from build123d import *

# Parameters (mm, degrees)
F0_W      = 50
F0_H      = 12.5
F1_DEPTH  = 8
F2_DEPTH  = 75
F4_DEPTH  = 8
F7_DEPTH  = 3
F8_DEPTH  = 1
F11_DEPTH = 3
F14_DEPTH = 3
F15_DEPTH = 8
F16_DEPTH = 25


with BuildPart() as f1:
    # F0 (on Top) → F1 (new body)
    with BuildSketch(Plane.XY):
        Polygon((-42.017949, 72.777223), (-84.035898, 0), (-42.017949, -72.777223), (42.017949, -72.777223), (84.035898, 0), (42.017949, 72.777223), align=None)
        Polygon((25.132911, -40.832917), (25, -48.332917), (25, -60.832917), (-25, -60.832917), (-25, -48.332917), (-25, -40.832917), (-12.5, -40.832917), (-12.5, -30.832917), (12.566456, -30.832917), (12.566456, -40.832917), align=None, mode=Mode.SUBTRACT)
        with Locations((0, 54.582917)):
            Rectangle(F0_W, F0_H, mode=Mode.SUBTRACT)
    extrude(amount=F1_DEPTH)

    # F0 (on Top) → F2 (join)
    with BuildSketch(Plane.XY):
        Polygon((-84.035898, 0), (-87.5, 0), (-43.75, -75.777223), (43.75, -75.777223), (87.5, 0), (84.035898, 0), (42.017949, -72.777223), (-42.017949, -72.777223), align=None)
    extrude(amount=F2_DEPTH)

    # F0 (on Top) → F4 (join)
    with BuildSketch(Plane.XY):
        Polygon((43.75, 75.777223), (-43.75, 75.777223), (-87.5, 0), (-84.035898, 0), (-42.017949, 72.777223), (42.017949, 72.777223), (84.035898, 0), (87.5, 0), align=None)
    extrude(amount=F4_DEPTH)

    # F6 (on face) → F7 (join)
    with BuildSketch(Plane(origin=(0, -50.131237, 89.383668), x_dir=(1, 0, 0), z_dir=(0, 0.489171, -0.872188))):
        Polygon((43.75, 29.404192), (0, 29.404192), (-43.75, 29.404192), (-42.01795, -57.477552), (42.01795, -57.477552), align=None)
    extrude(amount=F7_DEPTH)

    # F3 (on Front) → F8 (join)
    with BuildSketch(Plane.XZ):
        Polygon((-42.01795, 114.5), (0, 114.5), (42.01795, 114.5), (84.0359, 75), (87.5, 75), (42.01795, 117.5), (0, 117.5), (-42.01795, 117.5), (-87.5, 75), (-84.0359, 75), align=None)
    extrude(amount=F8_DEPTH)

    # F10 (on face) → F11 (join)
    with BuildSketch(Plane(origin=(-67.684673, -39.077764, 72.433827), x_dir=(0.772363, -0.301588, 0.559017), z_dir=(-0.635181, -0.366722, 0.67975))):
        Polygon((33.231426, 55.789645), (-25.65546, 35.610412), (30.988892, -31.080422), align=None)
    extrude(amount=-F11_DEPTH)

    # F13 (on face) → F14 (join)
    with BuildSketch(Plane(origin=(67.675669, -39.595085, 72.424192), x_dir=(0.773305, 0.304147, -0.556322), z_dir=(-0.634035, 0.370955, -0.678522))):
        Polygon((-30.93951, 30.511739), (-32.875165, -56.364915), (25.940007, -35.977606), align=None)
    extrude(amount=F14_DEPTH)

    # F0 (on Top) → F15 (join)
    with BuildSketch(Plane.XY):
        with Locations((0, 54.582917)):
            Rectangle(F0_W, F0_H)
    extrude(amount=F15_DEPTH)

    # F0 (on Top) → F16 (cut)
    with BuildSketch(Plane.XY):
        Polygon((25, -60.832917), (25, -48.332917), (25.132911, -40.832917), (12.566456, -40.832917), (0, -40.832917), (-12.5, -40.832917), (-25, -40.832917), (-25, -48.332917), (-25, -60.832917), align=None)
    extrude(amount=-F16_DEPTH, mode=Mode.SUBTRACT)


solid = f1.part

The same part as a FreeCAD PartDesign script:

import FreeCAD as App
import Part
import Sketcher
Q = App.Units.Quantity

doc = App.newDocument("Part")
body = doc.addObject("PartDesign::Body", "Body")

# Sketch on XY plane
sketch1 = doc.addObject("Sketcher::SketchObject", "Sketch")
body.addObject(sketch1)
sketch1.AttachmentSupport = (doc.XY_Plane, [""])
sketch1.MapMode = "FlatFace"
sketch1.addGeometry([
    Part.LineSegment(App.Vector(-42, 73, 0), App.Vector(-84, 0, 0)),  # 0
    Part.LineSegment(App.Vector(-84, 0, 0), App.Vector(-42, -73, 0)),  # 1
    Part.LineSegment(App.Vector(-42, -73, 0), App.Vector(42, -73, 0)),  # 2
    Part.LineSegment(App.Vector(42, -73, 0), App.Vector(84, 0, 0)),  # 3
    Part.LineSegment(App.Vector(84, 0, 0), App.Vector(42, 73, 0)),  # 4
    Part.LineSegment(App.Vector(42, 73, 0), App.Vector(-42, 73, 0)),  # 5
    Part.LineSegment(App.Vector(13, -41, 0), App.Vector(25, -41, 0)),  # 6
    Part.LineSegment(App.Vector(25, -41, 0), App.Vector(25, -48, 0)),  # 7
    Part.LineSegment(App.Vector(25, -48, 0), App.Vector(25, -61, 0)),  # 8
    Part.LineSegment(App.Vector(25, -61, 0), App.Vector(-25, -61, 0)),  # 9
    Part.LineSegment(App.Vector(-25, -61, 0), App.Vector(-25, -41, 0)),  # 10
    Part.LineSegment(App.Vector(-25, -41, 0), App.Vector(-12, -41, 0)),  # 11
    Part.LineSegment(App.Vector(-12, -41, 0), App.Vector(-12, -31, 0)),  # 12
    Part.LineSegment(App.Vector(-12, -31, 0), App.Vector(13, -31, 0)),  # 13
    Part.LineSegment(App.Vector(13, -31, 0), App.Vector(13, -41, 0)),  # 14
    Part.LineSegment(App.Vector(25, 48, 0), App.Vector(-25, 48, 0)),  # 15
    Part.LineSegment(App.Vector(-25, 48, 0), App.Vector(-25, 61, 0)),  # 16
    Part.LineSegment(App.Vector(-25, 61, 0), App.Vector(25, 61, 0)),  # 17
    Part.LineSegment(App.Vector(25, 61, 0), App.Vector(25, 48, 0)),  # 18
], False)
sketch1.addConstraint([
    Sketcher.Constraint("Coincident", 0, 2, 1, 1),
    Sketcher.Constraint("Coincident", 1, 2, 2, 1),
    Sketcher.Constraint("Coincident", 2, 2, 3, 1),
    Sketcher.Constraint("Coincident", 3, 2, 4, 1),
    Sketcher.Constraint("Coincident", 4, 2, 5, 1),
    Sketcher.Constraint("Coincident", 5, 2, 0, 1),
    Sketcher.Constraint("Coincident", 6, 2, 7, 1),
    Sketcher.Constraint("Coincident", 7, 2, 8, 1),
    Sketcher.Constraint("Coincident", 8, 2, 9, 1),
    Sketcher.Constraint("Coincident", 9, 2, 10, 1),
    Sketcher.Constraint("Coincident", 10, 2, 11, 1),
    Sketcher.Constraint("Coincident", 11, 2, 12, 1),
    Sketcher.Constraint("Coincident", 12, 2, 13, 1),
    Sketcher.Constraint("Coincident", 13, 2, 14, 1),
    Sketcher.Constraint("Coincident", 14, 2, 6, 1),
    Sketcher.Constraint("Coincident", 15, 2, 16, 1),
    Sketcher.Constraint("Coincident", 16, 2, 17, 1),
    Sketcher.Constraint("Coincident", 17, 2, 18, 1),
    Sketcher.Constraint("Coincident", 18, 2, 15, 1),
    Sketcher.Constraint("Horizontal", 2),
    Sketcher.Constraint("Horizontal", 5),
    Sketcher.Constraint("Horizontal", 6),
    Sketcher.Constraint("Vertical", 8),
    Sketcher.Constraint("Horizontal", 9),
    Sketcher.Constraint("Vertical", 10),
    Sketcher.Constraint("Horizontal", 11),
    Sketcher.Constraint("Vertical", 12),
    Sketcher.Constraint("Horizontal", 13),
    Sketcher.Constraint("Vertical", 14),
    Sketcher.Constraint("Horizontal", 15),
    Sketcher.Constraint("Vertical", 16),
    Sketcher.Constraint("Horizontal", 17),
    Sketcher.Constraint("Vertical", 18),
    Sketcher.Constraint("Symmetric", 0, 2, 3, 2, -1, 1),
    Sketcher.Constraint("Symmetric", 1, 2, 4, 2, -1, 1),
    Sketcher.Constraint("Symmetric", 7, 2, 15, 2, -1, 1),
    Sketcher.Constraint("Symmetric", 9, 2, 17, 2, -1, 1),
    Sketcher.Constraint("PointOnObject", 0, 2, -1),
    Sketcher.Constraint("Parallel", 0, 3),
    Sketcher.Constraint("Horizontal", 6, 2, 10, 2),
    Sketcher.Constraint("Vertical", 2, 2, 4, 2),
    Sketcher.Constraint("Vertical", 10, 2, 15, 2),
    Sketcher.Constraint("Equal", 11, 8),
    Sketcher.Constraint("DistanceX", 9, 2, 9, 1, 50.0),
    Sketcher.Constraint("DistanceY", 10, 1, 10, 2, 20.0),
    Sketcher.Constraint("DistanceY", 12, 1, 12, 2, 10.0),
    Sketcher.Constraint("Angle", 0, Q("-120 deg")),
    Sketcher.Constraint("DistanceX", 11, 1, 11, 2, 12.5),
    Sketcher.Constraint("DistanceX", 2, 1, 2, 2, 84.035898),
    Sketcher.Constraint("Distance", 0, 84.035898),
    Sketcher.Constraint("DistanceX", 6, 1, 6, 2, 12.566455),
    Sketcher.Constraint("DistanceX", 13, 1, 13, 2, 25.066456),
    Sketcher.Constraint("DistanceY", 6, 2, 4, 2, 113.61014),
])
pad1 = doc.addObject("PartDesign::Pad", "Pad")
body.addObject(pad1)
pad1.Profile = sketch1
pad1.Length = 8

# Sketch on XY plane
sketch2 = doc.addObject("Sketcher::SketchObject", "Sketch001")
body.addObject(sketch2)
sketch2.AttachmentSupport = (doc.XY_Plane, [""])
sketch2.MapMode = "FlatFace"
sketch2.addGeometry([
    Part.LineSegment(App.Vector(-84, 0, 0), App.Vector(-87.5, 0, 0)),  # 0
    Part.LineSegment(App.Vector(-87.5, 0, 0), App.Vector(-43.8, -75.8, 0)),  # 1
    Part.LineSegment(App.Vector(-43.8, -75.8, 0), App.Vector(43.8, -75.8, 0)),  # 2
    Part.LineSegment(App.Vector(43.8, -75.8, 0), App.Vector(87.5, 0, 0)),  # 3
    Part.LineSegment(App.Vector(87.5, 0, 0), App.Vector(84, 0, 0)),  # 4
    Part.LineSegment(App.Vector(84, 0, 0), App.Vector(42, -72.8, 0)),  # 5
    Part.LineSegment(App.Vector(42, -72.8, 0), App.Vector(-42, -72.8, 0)),  # 6
    Part.LineSegment(App.Vector(-42, -72.8, 0), App.Vector(-84, 0, 0)),  # 7
], False)
sketch2.addConstraint([
    Sketcher.Constraint("Coincident", 0, 2, 1, 1),
    Sketcher.Constraint("Coincident", 1, 2, 2, 1),
    Sketcher.Constraint("Coincident", 2, 2, 3, 1),
    Sketcher.Constraint("Coincident", 3, 2, 4, 1),
    Sketcher.Constraint("Coincident", 4, 2, 5, 1),
    Sketcher.Constraint("Coincident", 5, 2, 6, 1),
    Sketcher.Constraint("Coincident", 6, 2, 7, 1),
    Sketcher.Constraint("Coincident", 7, 2, 0, 1),
    Sketcher.Constraint("Horizontal", 0),
    Sketcher.Constraint("Horizontal", 2),
    Sketcher.Constraint("Horizontal", 4),
    Sketcher.Constraint("Horizontal", 6),
    Sketcher.Constraint("Symmetric", 0, 2, 3, 2, -1, 1),
    Sketcher.Constraint("Symmetric", 4, 2, 7, 2, -2),
    Sketcher.Constraint("Parallel", 3, 5),
    Sketcher.Constraint("Parallel", 1, 7),
    Sketcher.Constraint("Equal", 1, 3),
    Sketcher.Constraint("Angle", 1, Q("-60 deg")),
    Sketcher.Constraint("DistanceX", 2, 1, 2, 2, 87.5),
    Sketcher.Constraint("DistanceX", 0, 2, 3, 2, 175.0),
    Sketcher.Constraint("DistanceY", 2, 2, 5, 2, 3.0),
    Sketcher.Constraint("DistanceX", 0, 2, 0, 1, 3.464102),
])
pad2 = doc.addObject("PartDesign::Pad", "Pad001")
body.addObject(pad2)
pad2.Profile = sketch2
pad2.Length = 75

# Sketch on XY plane
sketch3 = doc.addObject("Sketcher::SketchObject", "Sketch002")
body.addObject(sketch3)
sketch3.AttachmentSupport = (doc.XY_Plane, [""])
sketch3.MapMode = "FlatFace"
sketch3.addGeometry([
    Part.LineSegment(App.Vector(43.8, 75.8, 0), App.Vector(-43.8, 75.8, 0)),  # 0
    Part.LineSegment(App.Vector(-43.8, 75.8, 0), App.Vector(-87.5, 0, 0)),  # 1
    Part.LineSegment(App.Vector(-87.5, 0, 0), App.Vector(-84, 0, 0)),  # 2
    Part.LineSegment(App.Vector(-84, 0, 0), App.Vector(-42, 72.8, 0)),  # 3
    Part.LineSegment(App.Vector(-42, 72.8, 0), App.Vector(42, 72.8, 0)),  # 4
    Part.LineSegment(App.Vector(42, 72.8, 0), App.Vector(84, 0, 0)),  # 5
    Part.LineSegment(App.Vector(84, 0, 0), App.Vector(87.5, 0, 0)),  # 6
    Part.LineSegment(App.Vector(87.5, 0, 0), App.Vector(43.8, 75.8, 0)),  # 7
], False)
sketch3.addConstraint([
    Sketcher.Constraint("Coincident", 0, 2, 1, 1),
    Sketcher.Constraint("Coincident", 1, 2, 2, 1),
    Sketcher.Constraint("Coincident", 2, 2, 3, 1),
    Sketcher.Constraint("Coincident", 3, 2, 4, 1),
    Sketcher.Constraint("Coincident", 4, 2, 5, 1),
    Sketcher.Constraint("Coincident", 5, 2, 6, 1),
    Sketcher.Constraint("Coincident", 6, 2, 7, 1),
    Sketcher.Constraint("Coincident", 7, 2, 0, 1),
    Sketcher.Constraint("Horizontal", 0),
    Sketcher.Constraint("Horizontal", 2),
    Sketcher.Constraint("Horizontal", 4),
    Sketcher.Constraint("Horizontal", 6),
    Sketcher.Constraint("Symmetric", 2, 2, 5, 2, -1, 1),
    Sketcher.Constraint("Symmetric", 1, 2, 6, 2, -2),
    Sketcher.Constraint("Parallel", 1, 3),
    Sketcher.Constraint("Parallel", 5, 7),
    Sketcher.Constraint("Equal", 3, 5),
    Sketcher.Constraint("Angle", 1, Q("-120 deg")),
    Sketcher.Constraint("DistanceX", 0, 2, 0, 1, 87.5),
    Sketcher.Constraint("DistanceY", 3, 2, 0, 2, 3.0),
    Sketcher.Constraint("Distance", 1, 87.5),
    Sketcher.Constraint("DistanceX", 2, 1, 2, 2, 3.464102),
])
pad3 = doc.addObject("PartDesign::Pad", "Pad002")
body.addObject(pad3)
pad3.Profile = sketch3
pad3.Length = 8

# Sketch on an angled plane
sketch4 = doc.addObject("Sketcher::SketchObject", "Sketch003")
body.addObject(sketch4)
sketch4.Placement = App.Placement(App.Vector(0, -50.131237, 89.383668), App.Rotation(App.Vector(1, 0, 0), App.Vector(0, -0.872187924, -0.489170957), App.Vector(0, 0.489170957, -0.872187924), "ZXY"))
sketch4.addGeometry([
    Part.LineSegment(App.Vector(44, 29, 0), App.Vector(-44, 29, 0)),
    Part.LineSegment(App.Vector(-44, 29, 0), App.Vector(-42, -57, 0)),
    Part.LineSegment(App.Vector(-42, -57, 0), App.Vector(42, -57, 0)),
    Part.LineSegment(App.Vector(42, -57, 0), App.Vector(44, 29, 0)),
], False)
sketch4.addConstraint([
    Sketcher.Constraint("Coincident", 0, 2, 1, 1),
    Sketcher.Constraint("Coincident", 1, 2, 2, 1),
    Sketcher.Constraint("Coincident", 2, 2, 3, 1),
    Sketcher.Constraint("Coincident", 3, 2, 0, 1),
    Sketcher.Constraint("Horizontal", 0),
    Sketcher.Constraint("Horizontal", 2),
    Sketcher.Constraint("Equal", 1, 3),
    Sketcher.Constraint("DistanceX", 0, 2, 0, 1, 87.5),
    Sketcher.Constraint("DistanceX", 0, 2, -1, 1, 43.75),
    Sketcher.Constraint("DistanceX", 2, 1, 2, 2, 84.0359),
    Sketcher.Constraint("DistanceY", -1, 1, 0, 2, 29.404192),
    Sketcher.Constraint("DistanceY", 1, 2, -1, 1, 57.477552),
])
pad4 = doc.addObject("PartDesign::Pad", "Pad003")
body.addObject(pad4)
pad4.Profile = sketch4
pad4.Length = 3

# Sketch on XZ plane
sketch5 = doc.addObject("Sketcher::SketchObject", "Sketch004")
body.addObject(sketch5)
sketch5.AttachmentSupport = (doc.XZ_Plane, [""])
sketch5.MapMode = "FlatFace"
sketch5.addGeometry([
    Part.LineSegment(App.Vector(-42, 114.5, 0), App.Vector(42, 114.5, 0)),  # 0
    Part.LineSegment(App.Vector(42, 114.5, 0), App.Vector(84, 75, 0)),  # 1
    Part.LineSegment(App.Vector(84, 75, 0), App.Vector(87.5, 75, 0)),  # 2
    Part.LineSegment(App.Vector(87.5, 75, 0), App.Vector(42, 117.5, 0)),  # 3
    Part.LineSegment(App.Vector(42, 117.5, 0), App.Vector(-42, 117.5, 0)),  # 4
    Part.LineSegment(App.Vector(-42, 117.5, 0), App.Vector(-87.5, 75, 0)),  # 5
    Part.LineSegment(App.Vector(-87.5, 75, 0), App.Vector(-84, 75, 0)),  # 6
    Part.LineSegment(App.Vector(-84, 75, 0), App.Vector(-42, 114.5, 0)),  # 7
], False)
sketch5.addConstraint([
    Sketcher.Constraint("Coincident", 0, 2, 1, 1),
    Sketcher.Constraint("Coincident", 1, 2, 2, 1),
    Sketcher.Constraint("Coincident", 2, 2, 3, 1),
    Sketcher.Constraint("Coincident", 3, 2, 4, 1),
    Sketcher.Constraint("Coincident", 4, 2, 5, 1),
    Sketcher.Constraint("Coincident", 5, 2, 6, 1),
    Sketcher.Constraint("Coincident", 6, 2, 7, 1),
    Sketcher.Constraint("Coincident", 7, 2, 0, 1),
    Sketcher.Constraint("Horizontal", 0),
    Sketcher.Constraint("Horizontal", 2),
    Sketcher.Constraint("Horizontal", 4),
    Sketcher.Constraint("Horizontal", 6),
    Sketcher.Constraint("Symmetric", 2, 2, 5, 2, -2),
    Sketcher.Constraint("Vertical", 0, 2, 3, 2),
    Sketcher.Constraint("Vertical", 4, 2, 7, 2),
    Sketcher.Constraint("Equal", 2, 6),
    Sketcher.Constraint("Equal", 3, 5),
    Sketcher.Constraint("DistanceY", -1, 1, 1, 2, 75.0),
    Sketcher.Constraint("DistanceY", 0, 2, 3, 2, 3.0),
    Sketcher.Constraint("DistanceX", 5, 2, 2, 2, 175.0),
    Sketcher.Constraint("DistanceY", -1, 1, 0, 2, 114.5),
    Sketcher.Constraint("DistanceX", 0, 1, 0, 2, 84.0359),
    Sketcher.Constraint("DistanceX", 2, 1, 2, 2, 3.4641),
])
pad5 = doc.addObject("PartDesign::Pad", "Pad004")
body.addObject(pad5)
pad5.Profile = sketch5
pad5.Length = 1

# Sketch on an angled plane
sketch6 = doc.addObject("Sketcher::SketchObject", "Sketch005")
body.addObject(sketch6)
sketch6.Placement = App.Placement(App.Vector(-67.684673, -39.077764, 72.433827), App.Rotation(App.Vector(0.772363317, -0.301587842, 0.559016708), App.Vector(0.00000061, 0.88009076, 0.47480549), App.Vector(-0.635181003, -0.366722002, 0.679750003), "ZXY"))
sketch6.addGeometry([
    Part.LineSegment(App.Vector(33, 56, 0), App.Vector(-26, 36, 0)),
    Part.LineSegment(App.Vector(-26, 36, 0), App.Vector(31, -31, 0)),
    Part.LineSegment(App.Vector(31, -31, 0), App.Vector(33, 56, 0)),
], False)
sketch6.addConstraint([
    Sketcher.Constraint("Coincident", 0, 2, 1, 1),
    Sketcher.Constraint("Coincident", 1, 2, 2, 1),
    Sketcher.Constraint("Coincident", 2, 2, 0, 1),
    Sketcher.Constraint("Distance", 1, 87.5),
    Sketcher.Constraint("DistanceX", 0, 2, -1, 1, 25.65546),
    Sketcher.Constraint("DistanceY", -1, 1, 0, 2, 35.610412),
    Sketcher.Constraint("DistanceX", -1, 1, 1, 2, 30.988892),
    Sketcher.Constraint("Distance", 0, 62.248428),
    Sketcher.Constraint("Distance", 2, 86.899007),
])
pad6 = doc.addObject("PartDesign::Pad", "Pad005")
body.addObject(pad6)
pad6.Profile = sketch6
pad6.Length = 3
pad6.Reversed = True

# Sketch on an angled plane
sketch7 = doc.addObject("Sketcher::SketchObject", "Sketch006")
body.addObject(sketch7)
sketch7.Placement = App.Placement(App.Vector(67.675669, -39.595085, 72.424192), App.Rotation(App.Vector(0.773304376, 0.304147294, -0.556322537), App.Vector(0.000000003, -0.877431949, -0.479701131), App.Vector(-0.634034969, 0.370954982, -0.678521967), "ZXY"))
sketch7.addGeometry([
    Part.LineSegment(App.Vector(-31, 31, 0), App.Vector(-33, -56, 0)),
    Part.LineSegment(App.Vector(-33, -56, 0), App.Vector(26, -36, 0)),
    Part.LineSegment(App.Vector(26, -36, 0), App.Vector(-31, 31, 0)),
], False)
sketch7.addConstraint([
    Sketcher.Constraint("Coincident", 0, 2, 1, 1),
    Sketcher.Constraint("Coincident", 1, 2, 2, 1),
    Sketcher.Constraint("Coincident", 2, 2, 0, 1),
    Sketcher.Constraint("Distance", 1, 62.248428),
    Sketcher.Constraint("DistanceX", 2, 2, -1, 1, 30.93951),
    Sketcher.Constraint("DistanceY", -1, 1, 2, 2, 30.511739),
    Sketcher.Constraint("DistanceX", 0, 2, 1, 2, 58.815172),
    Sketcher.Constraint("Distance", 0, 86.898215),
    Sketcher.Constraint("Distance", 2, 87.499214),
])
pad7 = doc.addObject("PartDesign::Pad", "Pad006")
body.addObject(pad7)
pad7.Profile = sketch7
pad7.Length = 3

# Sketch on XY plane
sketch8 = doc.addObject("Sketcher::SketchObject", "Sketch007")
body.addObject(sketch8)
sketch8.AttachmentSupport = (doc.XY_Plane, [""])
sketch8.MapMode = "FlatFace"
sketch8.addGeometry([
    Part.LineSegment(App.Vector(-25, 61, 0), App.Vector(-25, 48, 0)),
    Part.LineSegment(App.Vector(-25, 48, 0), App.Vector(25, 48, 0)),
    Part.LineSegment(App.Vector(25, 48, 0), App.Vector(25, 61, 0)),
    Part.LineSegment(App.Vector(25, 61, 0), App.Vector(-25, 61, 0)),
], False)
sketch8.addConstraint([
    Sketcher.Constraint("Coincident", 0, 2, 1, 1),
    Sketcher.Constraint("Coincident", 1, 2, 2, 1),
    Sketcher.Constraint("Coincident", 2, 2, 3, 1),
    Sketcher.Constraint("Coincident", 3, 2, 0, 1),
    Sketcher.Constraint("Vertical", 0),
    Sketcher.Constraint("Horizontal", 1),
    Sketcher.Constraint("Vertical", 2),
    Sketcher.Constraint("Horizontal", 3),
    Sketcher.Constraint("DistanceX", 1, 1, 1, 2, 50.0),
    Sketcher.Constraint("DistanceY", 0, 2, 0, 1, 12.5),
    Sketcher.Constraint("DistanceX", 0, 2, -1, 1, 25.0),
    Sketcher.Constraint("DistanceY", -1, 1, 0, 2, 48.332917),
])
pad8 = doc.addObject("PartDesign::Pad", "Pad007")
body.addObject(pad8)
pad8.Profile = sketch8
pad8.Length = 8

# Sketch on XY plane
sketch9 = doc.addObject("Sketcher::SketchObject", "Sketch008")
body.addObject(sketch9)
sketch9.AttachmentSupport = (doc.XY_Plane, [""])
sketch9.MapMode = "FlatFace"
sketch9.addGeometry([
    Part.LineSegment(App.Vector(25, -61, 0), App.Vector(25, -48, 0)),  # 0
    Part.LineSegment(App.Vector(25, -48, 0), App.Vector(25, -41, 0)),  # 1
    Part.LineSegment(App.Vector(25, -41, 0), App.Vector(-25, -41, 0)),  # 2
    Part.LineSegment(App.Vector(-25, -41, 0), App.Vector(-25, -61, 0)),  # 3
    Part.LineSegment(App.Vector(-25, -61, 0), App.Vector(25, -61, 0)),  # 4
], False)
sketch9.addConstraint([
    Sketcher.Constraint("Coincident", 0, 2, 1, 1),
    Sketcher.Constraint("Coincident", 1, 2, 2, 1),
    Sketcher.Constraint("Coincident", 2, 2, 3, 1),
    Sketcher.Constraint("Coincident", 3, 2, 4, 1),
    Sketcher.Constraint("Coincident", 4, 2, 0, 1),
    Sketcher.Constraint("Vertical", 0),
    Sketcher.Constraint("Horizontal", 2),
    Sketcher.Constraint("Vertical", 3),
    Sketcher.Constraint("Horizontal", 4),
    Sketcher.Constraint("DistanceX", 4, 1, 4, 2, 50.0),
    Sketcher.Constraint("DistanceY", 3, 2, 3, 1, 20.0),
    Sketcher.Constraint("DistanceY", 0, 1, 0, 2, 12.5),
    Sketcher.Constraint("DistanceX", -1, 1, 0, 2, 25.0),
    Sketcher.Constraint("DistanceX", 2, 2, 2, 1, 50.132911),
    Sketcher.Constraint("DistanceY", 0, 2, -1, 1, 48.332917),
])
pocket1 = doc.addObject("PartDesign::Pocket", "Pocket")
body.addObject(pocket1)
pocket1.Profile = sketch9
pocket1.Length = 25

doc.recompute()
